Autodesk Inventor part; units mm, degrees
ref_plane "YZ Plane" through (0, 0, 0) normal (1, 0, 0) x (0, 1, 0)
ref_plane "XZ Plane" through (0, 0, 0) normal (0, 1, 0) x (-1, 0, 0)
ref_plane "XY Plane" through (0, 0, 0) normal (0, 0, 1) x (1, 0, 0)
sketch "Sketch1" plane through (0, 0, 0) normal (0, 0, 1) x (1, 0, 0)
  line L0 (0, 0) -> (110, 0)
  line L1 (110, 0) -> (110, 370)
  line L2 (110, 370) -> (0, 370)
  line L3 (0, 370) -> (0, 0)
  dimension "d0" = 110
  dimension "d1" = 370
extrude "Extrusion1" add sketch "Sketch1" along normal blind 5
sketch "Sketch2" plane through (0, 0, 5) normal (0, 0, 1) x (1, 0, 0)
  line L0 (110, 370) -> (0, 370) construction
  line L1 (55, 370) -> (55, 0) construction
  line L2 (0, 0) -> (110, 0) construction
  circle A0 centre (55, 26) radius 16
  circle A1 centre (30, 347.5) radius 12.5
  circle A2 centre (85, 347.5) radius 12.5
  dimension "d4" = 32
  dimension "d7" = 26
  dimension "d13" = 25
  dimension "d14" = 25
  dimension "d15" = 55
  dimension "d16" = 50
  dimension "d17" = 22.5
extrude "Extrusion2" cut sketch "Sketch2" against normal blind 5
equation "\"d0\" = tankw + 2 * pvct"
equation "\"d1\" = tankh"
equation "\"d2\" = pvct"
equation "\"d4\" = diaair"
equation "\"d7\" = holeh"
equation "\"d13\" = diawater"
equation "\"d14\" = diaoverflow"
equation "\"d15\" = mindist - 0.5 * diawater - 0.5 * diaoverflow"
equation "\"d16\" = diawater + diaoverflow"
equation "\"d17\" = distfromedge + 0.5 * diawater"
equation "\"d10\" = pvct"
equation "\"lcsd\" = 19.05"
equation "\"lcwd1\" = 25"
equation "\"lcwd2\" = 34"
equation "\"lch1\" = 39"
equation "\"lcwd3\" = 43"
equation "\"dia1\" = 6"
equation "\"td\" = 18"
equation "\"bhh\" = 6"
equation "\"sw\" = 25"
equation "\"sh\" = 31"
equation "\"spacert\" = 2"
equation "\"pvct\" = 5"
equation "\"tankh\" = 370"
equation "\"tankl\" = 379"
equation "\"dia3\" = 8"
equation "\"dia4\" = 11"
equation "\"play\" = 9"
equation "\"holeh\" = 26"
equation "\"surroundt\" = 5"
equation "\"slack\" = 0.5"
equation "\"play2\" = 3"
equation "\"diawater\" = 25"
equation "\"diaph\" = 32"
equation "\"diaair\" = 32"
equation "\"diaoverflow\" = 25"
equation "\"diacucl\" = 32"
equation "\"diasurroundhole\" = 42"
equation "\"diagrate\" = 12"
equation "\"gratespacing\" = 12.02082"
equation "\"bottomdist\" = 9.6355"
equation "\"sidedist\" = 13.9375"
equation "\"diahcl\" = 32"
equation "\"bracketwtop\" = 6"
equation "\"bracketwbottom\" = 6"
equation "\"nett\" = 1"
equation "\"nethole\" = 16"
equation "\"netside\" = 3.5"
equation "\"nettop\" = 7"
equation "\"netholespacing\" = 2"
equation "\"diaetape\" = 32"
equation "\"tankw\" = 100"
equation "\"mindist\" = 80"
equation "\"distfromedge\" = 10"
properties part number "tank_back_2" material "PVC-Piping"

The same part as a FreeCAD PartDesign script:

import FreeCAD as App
import Part
import Sketcher

V = App.Vector


def add_polygon(sketch, points):
    """Adds a closed chain of lines whose ends are joined by coincident constraints."""
    first, n = sketch.GeometryCount, len(points)
    for a, b in zip(points, points[1:] + points[:1]):
        sketch.addGeometry(Part.LineSegment(App.Vector(*a, 0), App.Vector(*b, 0)), False)
    for i in range(n):
        sketch.addConstraint(Sketcher.Constraint("Coincident", first + i, 2, first + (i + 1) % n, 1))

doc = App.newDocument("Part")
body = doc.addObject("PartDesign::Body", "Body")

# Sketch on XY plane
sketch1 = body.newObject("Sketcher::SketchObject", "Sketch")
sketch1.AttachmentSupport = (doc.getObject("XY_Plane"), [""])
sketch1.MapMode = "FlatFace"
add_polygon(sketch1, [(0, 370), (0, 0), (110, 0), (110, 370)])  # lines 0-3
sketch1.addConstraint(Sketcher.Constraint("Vertical", 0))
sketch1.addConstraint(Sketcher.Constraint("Horizontal", 1))
sketch1.addConstraint(Sketcher.Constraint("Vertical", 2))
sketch1.addConstraint(Sketcher.Constraint("Horizontal", 3))
sketch1.addConstraint(Sketcher.Constraint("Coincident", 0, 2, -1, 1))
sketch1.addConstraint(Sketcher.Constraint("DistanceX", 1, 1, 1, 2, 110.0))
sketch1.addConstraint(Sketcher.Constraint("DistanceY", 0, 2, 0, 1, 370.0))
pad1 = body.newObject("PartDesign::Pad", "Pad")
pad1.Profile = sketch1
pad1.Length = 5

# Sketch on XY plane
sketch2 = body.newObject("Sketcher::SketchObject", "Sketch001")
sketch2.AttachmentSupport = (doc.getObject("XY_Plane"), [""])
sketch2.MapMode = "FlatFace"
sketch2.AttachmentOffset = App.Placement(V(0, 0, 5), App.Rotation())
sketch2.addGeometry(Part.Circle(V(55, 26, 0), V(0, 0, 1), 16), False)
sketch2.addGeometry(Part.Circle(V(30, 348, 0), V(0, 0, 1), 12), False)
sketch2.addGeometry(Part.Circle(V(85, 348, 0), V(0, 0, 1), 12), False)
sketch2.addConstraint(Sketcher.Constraint("Equal", 1, 2))
sketch2.addConstraint(Sketcher.Constraint("Horizontal", 1, 3, 2, 3))
sketch2.addConstraint(Sketcher.Constraint("Diameter", 0, 32.0))
sketch2.addConstraint(Sketcher.Constraint("Diameter", 1, 25.0))
sketch2.addConstraint(Sketcher.Constraint("DistanceX", -1, 1, 0, 3, 55.0))
sketch2.addConstraint(Sketcher.Constraint("DistanceY", -1, 1, 0, 3, 26.0))
sketch2.addConstraint(Sketcher.Constraint("DistanceX", 1, 3, 0, 3, 25.0))
sketch2.addConstraint(Sketcher.Constraint("DistanceX", 1, 3, 2, 3, 55.0))
sketch2.addConstraint(Sketcher.Constraint("DistanceY", -1, 1, 1, 3, 347.5))
pocket1 = body.newObject("PartDesign::Pocket", "Pocket")
pocket1.Profile = sketch2
pocket1.Length = 5

doc.recompute()
